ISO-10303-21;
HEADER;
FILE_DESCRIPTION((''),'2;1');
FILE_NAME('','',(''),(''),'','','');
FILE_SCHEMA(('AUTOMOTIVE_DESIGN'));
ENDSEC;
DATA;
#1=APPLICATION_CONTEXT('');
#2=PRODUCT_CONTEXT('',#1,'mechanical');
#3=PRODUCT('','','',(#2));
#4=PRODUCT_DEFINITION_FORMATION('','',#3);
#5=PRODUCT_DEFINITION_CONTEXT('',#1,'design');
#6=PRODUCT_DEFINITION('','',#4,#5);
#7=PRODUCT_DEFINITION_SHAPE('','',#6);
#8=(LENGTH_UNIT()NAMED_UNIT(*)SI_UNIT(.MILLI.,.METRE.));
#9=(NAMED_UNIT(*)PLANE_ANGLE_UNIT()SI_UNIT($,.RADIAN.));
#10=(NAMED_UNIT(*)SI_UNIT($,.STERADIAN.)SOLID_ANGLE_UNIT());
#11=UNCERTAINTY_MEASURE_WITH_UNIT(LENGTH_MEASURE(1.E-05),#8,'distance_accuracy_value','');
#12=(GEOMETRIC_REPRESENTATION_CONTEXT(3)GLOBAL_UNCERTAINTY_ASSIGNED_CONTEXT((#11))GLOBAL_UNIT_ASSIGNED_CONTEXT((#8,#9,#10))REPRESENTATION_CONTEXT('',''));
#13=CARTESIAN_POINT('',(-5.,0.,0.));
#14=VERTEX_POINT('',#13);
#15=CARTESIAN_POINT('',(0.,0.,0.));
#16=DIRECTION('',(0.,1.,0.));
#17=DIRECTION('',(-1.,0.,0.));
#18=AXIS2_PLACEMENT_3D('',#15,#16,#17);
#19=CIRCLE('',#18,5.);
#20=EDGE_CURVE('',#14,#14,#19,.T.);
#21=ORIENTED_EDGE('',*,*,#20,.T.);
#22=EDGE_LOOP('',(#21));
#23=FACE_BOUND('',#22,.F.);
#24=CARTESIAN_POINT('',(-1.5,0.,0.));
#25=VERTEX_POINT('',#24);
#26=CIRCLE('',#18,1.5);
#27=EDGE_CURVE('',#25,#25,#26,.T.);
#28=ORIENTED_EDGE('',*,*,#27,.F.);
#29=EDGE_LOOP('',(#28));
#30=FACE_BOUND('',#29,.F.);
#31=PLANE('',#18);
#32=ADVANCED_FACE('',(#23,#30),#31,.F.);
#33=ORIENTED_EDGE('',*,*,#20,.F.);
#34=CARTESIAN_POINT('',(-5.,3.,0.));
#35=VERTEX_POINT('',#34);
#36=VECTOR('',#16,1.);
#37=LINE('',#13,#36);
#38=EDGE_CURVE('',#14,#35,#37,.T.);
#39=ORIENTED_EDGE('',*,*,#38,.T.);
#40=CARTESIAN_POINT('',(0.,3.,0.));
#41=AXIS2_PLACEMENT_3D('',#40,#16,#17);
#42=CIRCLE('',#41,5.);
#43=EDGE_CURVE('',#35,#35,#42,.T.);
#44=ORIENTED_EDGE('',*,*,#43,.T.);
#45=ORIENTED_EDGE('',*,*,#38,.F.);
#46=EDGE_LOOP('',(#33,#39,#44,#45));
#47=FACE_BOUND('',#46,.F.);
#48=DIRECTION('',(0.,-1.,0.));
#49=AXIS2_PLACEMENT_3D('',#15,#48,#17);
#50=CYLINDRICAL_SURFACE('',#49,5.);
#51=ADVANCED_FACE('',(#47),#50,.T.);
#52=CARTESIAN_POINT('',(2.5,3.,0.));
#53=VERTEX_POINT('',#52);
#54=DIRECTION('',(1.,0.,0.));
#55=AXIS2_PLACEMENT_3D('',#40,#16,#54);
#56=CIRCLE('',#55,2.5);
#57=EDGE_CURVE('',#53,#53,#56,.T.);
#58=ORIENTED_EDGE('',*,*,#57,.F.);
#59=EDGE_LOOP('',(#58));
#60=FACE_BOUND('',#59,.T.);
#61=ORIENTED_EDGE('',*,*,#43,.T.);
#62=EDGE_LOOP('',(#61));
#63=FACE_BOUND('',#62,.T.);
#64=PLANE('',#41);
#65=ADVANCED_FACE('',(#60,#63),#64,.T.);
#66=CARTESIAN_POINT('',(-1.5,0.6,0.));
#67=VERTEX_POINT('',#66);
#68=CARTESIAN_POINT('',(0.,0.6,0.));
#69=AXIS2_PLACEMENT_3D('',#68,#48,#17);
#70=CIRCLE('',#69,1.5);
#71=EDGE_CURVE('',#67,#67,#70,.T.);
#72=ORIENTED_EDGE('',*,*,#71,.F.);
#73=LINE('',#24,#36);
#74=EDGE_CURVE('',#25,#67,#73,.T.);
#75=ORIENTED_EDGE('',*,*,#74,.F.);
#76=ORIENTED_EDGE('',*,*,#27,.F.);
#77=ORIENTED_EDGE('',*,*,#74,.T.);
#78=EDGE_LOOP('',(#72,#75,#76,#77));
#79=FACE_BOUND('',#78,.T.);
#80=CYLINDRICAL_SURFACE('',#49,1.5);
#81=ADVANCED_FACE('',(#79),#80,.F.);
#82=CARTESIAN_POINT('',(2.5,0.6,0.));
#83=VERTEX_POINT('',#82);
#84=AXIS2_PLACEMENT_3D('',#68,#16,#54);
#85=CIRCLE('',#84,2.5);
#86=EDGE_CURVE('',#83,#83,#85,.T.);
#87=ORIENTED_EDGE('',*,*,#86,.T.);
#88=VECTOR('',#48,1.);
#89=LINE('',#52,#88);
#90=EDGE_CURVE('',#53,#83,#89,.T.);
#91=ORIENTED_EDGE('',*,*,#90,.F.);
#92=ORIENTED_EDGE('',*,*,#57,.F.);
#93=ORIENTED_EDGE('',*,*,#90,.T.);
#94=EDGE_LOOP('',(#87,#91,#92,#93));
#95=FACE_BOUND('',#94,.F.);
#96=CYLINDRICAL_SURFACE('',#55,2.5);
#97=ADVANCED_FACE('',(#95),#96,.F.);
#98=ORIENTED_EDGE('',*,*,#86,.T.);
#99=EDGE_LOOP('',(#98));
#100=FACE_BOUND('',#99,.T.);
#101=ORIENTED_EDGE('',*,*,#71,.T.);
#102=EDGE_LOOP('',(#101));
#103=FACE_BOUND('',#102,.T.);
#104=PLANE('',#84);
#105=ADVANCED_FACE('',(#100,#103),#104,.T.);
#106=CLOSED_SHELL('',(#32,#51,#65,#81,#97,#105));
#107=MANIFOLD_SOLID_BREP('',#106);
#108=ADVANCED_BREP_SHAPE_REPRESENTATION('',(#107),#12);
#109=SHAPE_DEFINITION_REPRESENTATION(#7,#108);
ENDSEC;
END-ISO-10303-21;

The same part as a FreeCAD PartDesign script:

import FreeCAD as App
import Part
import Sketcher

V = App.Vector
Q = App.Units.Quantity

doc = App.newDocument("Part")
body = doc.addObject("PartDesign::Body", "Body")

sketch1 = body.newObject("Sketcher::SketchObject", "Sketch")
sketch1.AttachmentSupport = (doc.getObject("XZ_Plane"), [""])
sketch1.MapMode = "FlatFace"
sketch1.addGeometry([
    Part.Circle(V(0, 0, 0), V(0, 0, 1), 5),
    Part.Circle(V(0, 0, 0), V(0, 0, 1), 1.5),
], False)
sketch1.addConstraint([
    Sketcher.Constraint("Coincident", 0, 3, -1, 1),
    Sketcher.Constraint("Coincident", 1, 3, -1, 1),
    Sketcher.Constraint("Diameter", 0, Q("10 mm")),
    Sketcher.Constraint("Diameter", 1, Q("3 mm")),
])
pad1 = body.newObject("PartDesign::Pad", "Pad")
pad1.Profile = sketch1
pad1.Length = 3
pad1.Reversed = True

sketch2 = body.newObject("Sketcher::SketchObject", "Sketch001")
sketch2.AttachmentSupport = (doc.getObject("XZ_Plane"), [""])
sketch2.MapMode = "FlatFace"
sketch2.AttachmentOffset = App.Placement(V(0, 0, -3), App.Rotation())
sketch2.addGeometry(Part.Circle(V(0, 0, 0), V(0, 0, 1), 2.5), False)
sketch2.addConstraint([
    Sketcher.Constraint("Coincident", 0, 3, -1, 1),
    Sketcher.Constraint("Diameter", 0, Q("5 mm")),
])
pocket1 = body.newObject("PartDesign::Pocket", "Pocket")
pocket1.Profile = sketch2
pocket1.Length = 2.4
pocket1.Reversed = True

doc.recompute()
